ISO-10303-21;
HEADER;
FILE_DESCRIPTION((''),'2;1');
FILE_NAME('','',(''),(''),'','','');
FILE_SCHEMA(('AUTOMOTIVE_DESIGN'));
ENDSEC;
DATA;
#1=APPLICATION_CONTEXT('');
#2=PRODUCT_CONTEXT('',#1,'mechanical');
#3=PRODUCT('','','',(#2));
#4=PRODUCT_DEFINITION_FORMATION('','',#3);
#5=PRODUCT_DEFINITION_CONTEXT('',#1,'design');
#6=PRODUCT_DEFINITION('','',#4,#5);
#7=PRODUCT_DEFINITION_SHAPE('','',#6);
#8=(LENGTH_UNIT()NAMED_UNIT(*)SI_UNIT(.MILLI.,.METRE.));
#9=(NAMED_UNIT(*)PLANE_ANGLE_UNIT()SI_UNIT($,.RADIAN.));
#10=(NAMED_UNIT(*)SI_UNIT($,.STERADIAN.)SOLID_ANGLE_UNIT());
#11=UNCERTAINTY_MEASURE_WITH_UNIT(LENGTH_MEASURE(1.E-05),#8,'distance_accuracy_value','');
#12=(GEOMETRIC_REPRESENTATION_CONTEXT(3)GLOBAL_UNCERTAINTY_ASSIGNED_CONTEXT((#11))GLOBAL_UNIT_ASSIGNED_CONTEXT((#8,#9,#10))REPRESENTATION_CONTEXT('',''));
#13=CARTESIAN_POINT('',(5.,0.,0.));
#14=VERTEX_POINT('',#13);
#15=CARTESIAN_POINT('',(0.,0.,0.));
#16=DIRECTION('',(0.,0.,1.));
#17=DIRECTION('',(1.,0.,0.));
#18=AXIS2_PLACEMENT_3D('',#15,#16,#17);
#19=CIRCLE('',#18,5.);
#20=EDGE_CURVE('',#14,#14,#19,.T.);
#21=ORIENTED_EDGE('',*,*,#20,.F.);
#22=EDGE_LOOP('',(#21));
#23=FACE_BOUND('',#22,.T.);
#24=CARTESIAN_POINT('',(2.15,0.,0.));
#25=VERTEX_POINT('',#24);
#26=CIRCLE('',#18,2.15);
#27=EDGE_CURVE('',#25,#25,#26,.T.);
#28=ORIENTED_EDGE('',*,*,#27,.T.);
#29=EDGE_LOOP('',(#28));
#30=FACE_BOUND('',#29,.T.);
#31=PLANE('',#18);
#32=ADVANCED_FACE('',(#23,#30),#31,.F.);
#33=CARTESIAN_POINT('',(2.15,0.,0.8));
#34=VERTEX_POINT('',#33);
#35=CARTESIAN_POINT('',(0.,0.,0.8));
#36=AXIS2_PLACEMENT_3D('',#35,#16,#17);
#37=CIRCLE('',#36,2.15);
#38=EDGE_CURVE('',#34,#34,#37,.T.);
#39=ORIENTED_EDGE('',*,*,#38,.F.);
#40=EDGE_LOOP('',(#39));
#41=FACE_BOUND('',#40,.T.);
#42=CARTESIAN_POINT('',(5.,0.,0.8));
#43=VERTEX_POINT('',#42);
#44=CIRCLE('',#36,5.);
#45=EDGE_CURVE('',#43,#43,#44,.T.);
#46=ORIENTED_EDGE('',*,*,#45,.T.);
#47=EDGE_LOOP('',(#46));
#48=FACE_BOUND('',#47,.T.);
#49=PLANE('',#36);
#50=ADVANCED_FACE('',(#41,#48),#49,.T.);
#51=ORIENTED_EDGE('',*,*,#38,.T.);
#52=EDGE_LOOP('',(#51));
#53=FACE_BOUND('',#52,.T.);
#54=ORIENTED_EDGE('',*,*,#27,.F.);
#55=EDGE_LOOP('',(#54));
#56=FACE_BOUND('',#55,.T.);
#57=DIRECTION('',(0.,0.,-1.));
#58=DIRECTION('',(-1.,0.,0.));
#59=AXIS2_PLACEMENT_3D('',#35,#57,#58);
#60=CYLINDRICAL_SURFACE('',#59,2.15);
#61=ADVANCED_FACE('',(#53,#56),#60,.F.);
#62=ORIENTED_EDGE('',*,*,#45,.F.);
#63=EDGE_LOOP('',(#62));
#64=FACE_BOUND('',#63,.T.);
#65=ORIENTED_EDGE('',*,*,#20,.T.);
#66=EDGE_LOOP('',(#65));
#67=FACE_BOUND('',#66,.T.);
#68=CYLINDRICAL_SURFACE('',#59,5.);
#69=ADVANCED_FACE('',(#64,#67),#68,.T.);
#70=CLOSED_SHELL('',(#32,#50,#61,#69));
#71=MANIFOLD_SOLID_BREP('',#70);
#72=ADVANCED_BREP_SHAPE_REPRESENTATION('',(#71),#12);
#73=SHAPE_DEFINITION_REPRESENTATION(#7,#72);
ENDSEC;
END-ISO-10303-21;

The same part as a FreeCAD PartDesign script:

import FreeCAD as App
import Part
import Sketcher

V = App.Vector

doc = App.newDocument("Part")
params = doc.addObject("Spreadsheet::Sheet", "Params")
for row, (alias, value) in enumerate([
    ("sketch1_diameter", "10 mm"),
    ("sketch1_diameter2", "4.3 mm"),
    ("pad1_length", "0.8 mm"),
], start=1):
    params.set(f"A{row}", alias)
    params.set(f"B{row}", "=" + value)
    params.setAlias(f"B{row}", alias)

body = doc.addObject("PartDesign::Body", "Body")

# Sketch on XY plane
sketch1 = body.newObject("Sketcher::SketchObject", "Sketch")
sketch1.AttachmentSupport = (doc.getObject("XY_Plane"), [""])
sketch1.MapMode = "FlatFace"
sketch1.addGeometry([
    Part.Circle(V(0, 0, 0), V(0, 0, 1), 5),
    Part.Circle(V(0, 0, 0), V(0, 0, 1), 2.15),
], False)
sketch1.addConstraint([
    Sketcher.Constraint("Coincident", 0, 3, -1, 1),
    Sketcher.Constraint("Coincident", 1, 3, -1, 1),
    Sketcher.Constraint("Diameter", 0, 10.0),
    Sketcher.Constraint("Diameter", 1, 4.3),
])
sketch1.setExpression("Constraints[2]", "Params.sketch1_diameter")
sketch1.setExpression("Constraints[3]", "Params.sketch1_diameter2")
pad1 = body.newObject("PartDesign::Pad", "Pad")
pad1.Profile = sketch1
pad1.setExpression("Length", "Params.pad1_length")

doc.recompute()
